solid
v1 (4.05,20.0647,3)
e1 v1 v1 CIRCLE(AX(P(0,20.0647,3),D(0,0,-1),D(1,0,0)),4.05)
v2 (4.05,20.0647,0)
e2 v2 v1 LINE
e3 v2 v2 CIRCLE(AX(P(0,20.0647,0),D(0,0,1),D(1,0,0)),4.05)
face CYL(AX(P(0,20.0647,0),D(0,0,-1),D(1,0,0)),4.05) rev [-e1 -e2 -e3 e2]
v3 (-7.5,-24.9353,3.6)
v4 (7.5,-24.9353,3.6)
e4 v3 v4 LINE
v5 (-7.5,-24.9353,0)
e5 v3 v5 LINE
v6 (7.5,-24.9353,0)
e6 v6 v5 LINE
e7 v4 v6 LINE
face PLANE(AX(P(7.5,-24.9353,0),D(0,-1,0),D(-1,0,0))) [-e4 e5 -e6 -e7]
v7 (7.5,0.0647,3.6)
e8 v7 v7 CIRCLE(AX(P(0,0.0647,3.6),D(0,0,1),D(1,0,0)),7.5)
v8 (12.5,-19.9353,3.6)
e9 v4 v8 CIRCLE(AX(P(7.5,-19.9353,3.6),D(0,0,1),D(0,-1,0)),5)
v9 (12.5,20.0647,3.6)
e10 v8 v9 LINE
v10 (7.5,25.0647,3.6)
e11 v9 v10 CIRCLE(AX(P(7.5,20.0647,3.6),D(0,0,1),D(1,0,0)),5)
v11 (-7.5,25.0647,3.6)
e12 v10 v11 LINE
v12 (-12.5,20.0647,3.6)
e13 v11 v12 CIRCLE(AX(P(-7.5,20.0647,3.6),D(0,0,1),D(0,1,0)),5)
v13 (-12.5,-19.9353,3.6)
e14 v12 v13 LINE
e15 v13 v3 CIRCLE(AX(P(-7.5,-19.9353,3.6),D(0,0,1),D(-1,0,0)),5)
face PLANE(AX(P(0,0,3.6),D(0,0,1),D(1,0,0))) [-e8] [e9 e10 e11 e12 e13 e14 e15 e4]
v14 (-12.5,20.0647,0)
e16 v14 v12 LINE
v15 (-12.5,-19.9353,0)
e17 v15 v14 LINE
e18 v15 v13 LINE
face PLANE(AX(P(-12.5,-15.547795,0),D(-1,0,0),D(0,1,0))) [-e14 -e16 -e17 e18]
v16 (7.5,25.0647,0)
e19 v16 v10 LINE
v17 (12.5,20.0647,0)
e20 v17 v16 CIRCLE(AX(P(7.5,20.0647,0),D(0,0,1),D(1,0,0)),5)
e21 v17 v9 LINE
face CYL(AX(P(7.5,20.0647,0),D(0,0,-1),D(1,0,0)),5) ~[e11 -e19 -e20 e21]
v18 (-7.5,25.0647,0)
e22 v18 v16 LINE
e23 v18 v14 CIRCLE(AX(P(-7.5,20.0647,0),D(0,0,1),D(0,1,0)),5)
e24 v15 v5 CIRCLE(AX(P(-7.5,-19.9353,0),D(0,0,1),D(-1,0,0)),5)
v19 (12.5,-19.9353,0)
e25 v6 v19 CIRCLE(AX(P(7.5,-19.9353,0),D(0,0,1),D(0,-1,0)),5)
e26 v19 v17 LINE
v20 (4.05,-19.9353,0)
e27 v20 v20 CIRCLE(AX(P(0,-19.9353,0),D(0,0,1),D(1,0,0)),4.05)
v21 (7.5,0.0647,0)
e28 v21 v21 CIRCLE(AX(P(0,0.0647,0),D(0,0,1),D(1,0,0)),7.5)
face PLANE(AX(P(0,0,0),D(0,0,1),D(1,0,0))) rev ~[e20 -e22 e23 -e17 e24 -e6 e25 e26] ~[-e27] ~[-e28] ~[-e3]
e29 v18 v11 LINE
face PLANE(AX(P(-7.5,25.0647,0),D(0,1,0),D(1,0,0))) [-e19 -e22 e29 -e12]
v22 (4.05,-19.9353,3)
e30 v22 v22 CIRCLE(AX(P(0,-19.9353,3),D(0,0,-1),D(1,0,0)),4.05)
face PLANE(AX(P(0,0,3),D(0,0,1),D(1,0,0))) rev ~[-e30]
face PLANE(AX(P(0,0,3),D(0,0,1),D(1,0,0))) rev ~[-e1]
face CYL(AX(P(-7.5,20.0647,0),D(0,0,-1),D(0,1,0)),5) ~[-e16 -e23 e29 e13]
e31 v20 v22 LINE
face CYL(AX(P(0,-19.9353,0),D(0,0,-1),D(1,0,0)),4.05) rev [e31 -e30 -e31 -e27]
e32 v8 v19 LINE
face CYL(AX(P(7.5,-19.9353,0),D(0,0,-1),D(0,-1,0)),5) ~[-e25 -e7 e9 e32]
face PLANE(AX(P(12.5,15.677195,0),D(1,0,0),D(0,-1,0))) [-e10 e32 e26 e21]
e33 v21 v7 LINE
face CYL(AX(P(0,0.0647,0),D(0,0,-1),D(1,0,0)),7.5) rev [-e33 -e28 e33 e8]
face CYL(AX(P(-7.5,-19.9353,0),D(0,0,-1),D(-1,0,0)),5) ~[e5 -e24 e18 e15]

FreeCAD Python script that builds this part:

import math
import FreeCAD as App
import Part
import Sketcher
from FreeCAD import Vector
Q = App.Units.Quantity

doc = App.newDocument("Part")
params = doc.addObject("Spreadsheet::Sheet", "Params")
for row, (alias, value) in enumerate([
    ("sketch1_diameter", "15 mm"),
    ("sketch1_radius", "5 mm"),
    ("sketch1_diameter2", "8.1 mm"),
    ("sketch1_width", "15 mm"),
    ("sketch1_height", "40 mm"),
    ("pad1_length", "3 mm"),
    ("sketch2_diameter", "15 mm"),
    ("sketch2_radius", "5 mm"),
    ("sketch2_width", "15 mm"),
    ("sketch2_height", "40 mm"),
    ("pad2_length", "0.6 mm"),
], start=1):
    params.set(f"A{row}", alias)
    params.set(f"B{row}", "=" + value)
    params.setAlias(f"B{row}", alias)

body = doc.addObject("PartDesign::Body", "Body")

# Sketch on XY plane
sketch1 = body.newObject("Sketcher::SketchObject", "Sketch")
sketch1.AttachmentSupport = (doc.getObject("XY_Plane"), [""])
sketch1.MapMode = "FlatFace"
sketch1.addGeometry([
    Part.ArcOfCircle(Part.Circle(Vector(7.5, 20.0647, 0), Vector(0, 0, 1), 5), math.radians(0), math.radians(90)),  # 0
    Part.LineSegment(Vector(7.5, 25.0647, 0), Vector(-7.5, 25.0647, 0)),  # 1
    Part.ArcOfCircle(Part.Circle(Vector(-7.5, 20.0647, 0), Vector(0, 0, 1), 5), math.radians(90), math.radians(180)),  # 2
    Part.LineSegment(Vector(-12.5, 20.0647, 0), Vector(-12.5, -19.9353, 0)),  # 3
    Part.ArcOfCircle(Part.Circle(Vector(-7.5, -19.9353, 0), Vector(0, 0, 1), 5), math.radians(180), math.radians(270)),  # 4
    Part.LineSegment(Vector(-7.5, -24.9353, 0), Vector(7.5, -24.9353, 0)),  # 5
    Part.ArcOfCircle(Part.Circle(Vector(7.5, -19.9353, 0), Vector(0, 0, 1), 5), math.radians(-90), math.radians(0)),  # 6
    Part.LineSegment(Vector(12.5, -19.9353, 0), Vector(12.5, 20.0647, 0)),  # 7
    Part.Circle(Vector(0, -19.9353, 0), Vector(0, 0, 1), 4.05),  # 8
    Part.Circle(Vector(0, 20.0647, 0), Vector(0, 0, 1), 4.05),  # 9
    Part.Circle(Vector(0, 0.0647, 0), Vector(0, 0, 1), 7.5),  # 10
], False)
sketch1.addConstraint([
    Sketcher.Constraint("Tangent", 0, 2, 1, 1),
    Sketcher.Constraint("Tangent", 1, 2, 2, 1),
    Sketcher.Constraint("Tangent", 2, 2, 3, 1),
    Sketcher.Constraint("Tangent", 3, 2, 4, 1),
    Sketcher.Constraint("Tangent", 4, 2, 5, 1),
    Sketcher.Constraint("Tangent", 5, 2, 6, 1),
    Sketcher.Constraint("Tangent", 6, 2, 7, 1),
    Sketcher.Constraint("Tangent", 7, 2, 0, 1),
    Sketcher.Constraint("Horizontal", 1),
    Sketcher.Constraint("Vertical", 3),
    Sketcher.Constraint("Horizontal", 5),
    Sketcher.Constraint("Vertical", 7),
    Sketcher.Constraint("Equal", 0, 2),
    Sketcher.Constraint("Equal", 2, 4),
    Sketcher.Constraint("Equal", 4, 6),
    Sketcher.Constraint("Equal", 8, 9),
    Sketcher.Constraint("PointOnObject", 8, 3, -2),
    Sketcher.Constraint("PointOnObject", 9, 3, -2),
    Sketcher.Constraint("PointOnObject", 10, 3, -2),
    Sketcher.Constraint("Horizontal", 6, 3, 8, 3),
    Sketcher.Constraint("Horizontal", 2, 3, 9, 3),
    Sketcher.Constraint("Diameter", 10, Q("15 mm")),
    Sketcher.Constraint("Radius", 0, Q("5 mm")),
    Sketcher.Constraint("Diameter", 8, Q("8.1 mm")),
    Sketcher.Constraint("DistanceX", 1, 2, 1, 1, Q("15 mm")),
    Sketcher.Constraint("DistanceY", 3, 2, 3, 1, Q("40 mm")),
    Sketcher.Constraint("DistanceY", 10, 3, 0, 2, Q("25 mm")),
    Sketcher.Constraint("DistanceX", -1, 1, 0, 3, Q("7.5 mm")),
    Sketcher.Constraint("DistanceY", -1, 1, 0, 3, Q("20.0647 mm")),
])
sketch1.setExpression("Constraints[21]", "Params.sketch1_diameter")
sketch1.setExpression("Constraints[22]", "Params.sketch1_radius")
sketch1.setExpression("Constraints[23]", "Params.sketch1_diameter2")
sketch1.setExpression("Constraints[24]", "Params.sketch1_width")
sketch1.setExpression("Constraints[25]", "Params.sketch1_height")
pad1 = body.newObject("PartDesign::Pad", "Pad")
pad1.Profile = sketch1
pad1.setExpression("Length", "Params.pad1_length")

# Sketch on XY plane
sketch2 = body.newObject("Sketcher::SketchObject", "Sketch001")
sketch2.AttachmentSupport = (doc.getObject("XY_Plane"), [""])
sketch2.MapMode = "FlatFace"
sketch2.AttachmentOffset = App.Placement(Vector(0, 0, 3), App.Rotation())
sketch2.addGeometry([
    Part.LineSegment(Vector(12.5, -19.9353, 0), Vector(12.5, 20.0647, 0)),  # 0
    Part.ArcOfCircle(Part.Circle(Vector(7.5, 20.0647, 0), Vector(0, 0, 1), 5), math.radians(0), math.radians(90)),  # 1
    Part.LineSegment(Vector(7.5, 25.0647, 0), Vector(-7.5, 25.0647, 0)),  # 2
    Part.ArcOfCircle(Part.Circle(Vector(-7.5, 20.0647, 0), Vector(0, 0, 1), 5), math.radians(90), math.radians(180)),  # 3
    Part.LineSegment(Vector(-12.5, 20.0647, 0), Vector(-12.5, -19.9353, 0)),  # 4
    Part.ArcOfCircle(Part.Circle(Vector(-7.5, -19.9353, 0), Vector(0, 0, 1), 5), math.radians(180), math.radians(270)),  # 5
    Part.LineSegment(Vector(-7.5, -24.9353, 0), Vector(7.5, -24.9353, 0)),  # 6
    Part.ArcOfCircle(Part.Circle(Vector(7.5, -19.9353, 0), Vector(0, 0, 1), 5), math.radians(-90), math.radians(0)),  # 7
    Part.Circle(Vector(0, 0.0647, 0), Vector(0, 0, 1), 7.5),  # 8
], False)
sketch2.addConstraint([
    Sketcher.Constraint("Tangent", 0, 2, 1, 1),
    Sketcher.Constraint("Tangent", 1, 2, 2, 1),
    Sketcher.Constraint("Tangent", 2, 2, 3, 1),
    Sketcher.Constraint("Tangent", 3, 2, 4, 1),
    Sketcher.Constraint("Tangent", 4, 2, 5, 1),
    Sketcher.Constraint("Tangent", 5, 2, 6, 1),
    Sketcher.Constraint("Tangent", 6, 2, 7, 1),
    Sketcher.Constraint("Tangent", 7, 2, 0, 1),
    Sketcher.Constraint("Vertical", 0),
    Sketcher.Constraint("Horizontal", 2),
    Sketcher.Constraint("Vertical", 4),
    Sketcher.Constraint("Horizontal", 6),
    Sketcher.Constraint("Equal", 1, 3),
    Sketcher.Constraint("Equal", 3, 5),
    Sketcher.Constraint("Equal", 5, 7),
    Sketcher.Constraint("PointOnObject", 8, 3, -2),
    Sketcher.Constraint("Diameter", 8, Q("15 mm")),
    Sketcher.Constraint("Radius", 1, Q("5 mm")),
    Sketcher.Constraint("DistanceX", 2, 2, 2, 1, Q("15 mm")),
    Sketcher.Constraint("DistanceY", 0, 1, 0, 2, Q("40 mm")),
    Sketcher.Constraint("DistanceY", 8, 3, 1, 3, Q("20 mm")),
    Sketcher.Constraint("DistanceX", -1, 1, 1, 3, Q("7.5 mm")),
    Sketcher.Constraint("DistanceY", -1, 1, 1, 3, Q("20.0647 mm")),
])
sketch2.setExpression("Constraints[16]", "Params.sketch2_diameter")
sketch2.setExpression("Constraints[17]", "Params.sketch2_radius")
sketch2.setExpression("Constraints[18]", "Params.sketch2_width")
sketch2.setExpression("Constraints[19]", "Params.sketch2_height")
pad2 = body.newObject("PartDesign::Pad", "Pad001")
pad2.Profile = sketch2
pad2.setExpression("Length", "Params.pad2_length")

doc.recompute()
